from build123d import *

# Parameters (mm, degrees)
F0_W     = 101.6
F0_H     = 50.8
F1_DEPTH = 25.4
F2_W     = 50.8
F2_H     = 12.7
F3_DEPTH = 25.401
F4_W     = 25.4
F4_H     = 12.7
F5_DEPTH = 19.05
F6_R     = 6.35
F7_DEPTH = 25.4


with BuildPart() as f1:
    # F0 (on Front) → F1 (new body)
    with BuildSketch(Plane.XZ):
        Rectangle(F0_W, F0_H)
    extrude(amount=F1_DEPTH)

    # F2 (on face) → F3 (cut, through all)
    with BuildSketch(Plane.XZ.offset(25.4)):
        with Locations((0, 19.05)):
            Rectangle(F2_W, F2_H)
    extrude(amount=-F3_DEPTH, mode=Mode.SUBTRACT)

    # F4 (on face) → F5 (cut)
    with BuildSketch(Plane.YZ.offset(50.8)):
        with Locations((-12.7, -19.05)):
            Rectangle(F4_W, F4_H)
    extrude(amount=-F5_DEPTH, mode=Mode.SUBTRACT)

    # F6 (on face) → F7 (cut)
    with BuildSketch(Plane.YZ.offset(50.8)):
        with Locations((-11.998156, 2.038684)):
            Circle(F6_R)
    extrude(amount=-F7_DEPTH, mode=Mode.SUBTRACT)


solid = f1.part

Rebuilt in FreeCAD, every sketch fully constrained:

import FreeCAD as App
import Part
import Sketcher

V = App.Vector
Q = App.Units.Quantity


def add_polygon(sketch, points):
    """Adds a closed chain of lines whose ends are joined by coincident constraints."""
    first, n = sketch.GeometryCount, len(points)
    for a, b in zip(points, points[1:] + points[:1]):
        sketch.addGeometry(Part.LineSegment(App.Vector(*a, 0), App.Vector(*b, 0)), False)
    for i in range(n):
        sketch.addConstraint(Sketcher.Constraint("Coincident", first + i, 2, first + (i + 1) % n, 1))

doc = App.newDocument("Part")
body = doc.addObject("PartDesign::Body", "Body")

# Sketch on XZ plane
sketch1 = body.newObject("Sketcher::SketchObject", "Sketch")
sketch1.AttachmentSupport = (doc.getObject("XZ_Plane"), [""])
sketch1.MapMode = "FlatFace"
add_polygon(sketch1, [(-51, 25), (-51, -25), (51, -25), (51, 25)])  # lines 0-3
sketch1.addConstraint(Sketcher.Constraint("Vertical", 0))
sketch1.addConstraint(Sketcher.Constraint("Horizontal", 1))
sketch1.addConstraint(Sketcher.Constraint("Vertical", 2))
sketch1.addConstraint(Sketcher.Constraint("Horizontal", 3))
sketch1.addConstraint(Sketcher.Constraint("Symmetric", 0, 2, 2, 2, -1, 1))
sketch1.addConstraint(Sketcher.Constraint("DistanceX", 1, 1, 1, 2, Q("4 in")))
sketch1.addConstraint(Sketcher.Constraint("DistanceY", 0, 2, 0, 1, Q("2 in")))
pad1 = body.newObject("PartDesign::Pad", "Pad")
pad1.Profile = sketch1
pad1.Length = Q("1 in")

# Sketch on XZ plane
sketch2 = body.newObject("Sketcher::SketchObject", "Sketch001")
sketch2.AttachmentSupport = (doc.getObject("XZ_Plane"), [""])
sketch2.MapMode = "FlatFace"
sketch2.AttachmentOffset = App.Placement(V(0, 0, 1 * 25.4), App.Rotation())
add_polygon(sketch2, [(-25, 25), (-25, 13), (25, 13), (25, 25)])  # lines 0-3
sketch2.addConstraint(Sketcher.Constraint("Vertical", 0))
sketch2.addConstraint(Sketcher.Constraint("Horizontal", 1))
sketch2.addConstraint(Sketcher.Constraint("Vertical", 2))
sketch2.addConstraint(Sketcher.Constraint("Horizontal", 3))
sketch2.addConstraint(Sketcher.Constraint("DistanceX", 1, 1, 1, 2, Q("2 in")))
sketch2.addConstraint(Sketcher.Constraint("DistanceY", 0, 2, 0, 1, Q("0.5 in")))
sketch2.addConstraint(Sketcher.Constraint("DistanceX", 0, 2, -1, 1, Q("1 in")))
sketch2.addConstraint(Sketcher.Constraint("DistanceY", -1, 1, 2, 2, Q("1 in")))
pocket1 = body.newObject("PartDesign::Pocket", "Pocket")
pocket1.Profile = sketch2
pocket1.Type = "ThroughAll"

# Sketch on YZ plane
sketch3 = body.newObject("Sketcher::SketchObject", "Sketch002")
sketch3.AttachmentSupport = (doc.getObject("YZ_Plane"), [""])
sketch3.MapMode = "FlatFace"
sketch3.AttachmentOffset = App.Placement(V(0, 0, 2 * 25.4), App.Rotation())
add_polygon(sketch3, [(-25, -13), (-25, -25), (0, -25), (0, -13)])  # lines 0-3
sketch3.addConstraint(Sketcher.Constraint("Vertical", 0))
sketch3.addConstraint(Sketcher.Constraint("Horizontal", 1))
sketch3.addConstraint(Sketcher.Constraint("Vertical", 2))
sketch3.addConstraint(Sketcher.Constraint("Horizontal", 3))
sketch3.addConstraint(Sketcher.Constraint("PointOnObject", 1, 2, -2))
sketch3.addConstraint(Sketcher.Constraint("DistanceX", 1, 1, 1, 2, Q("1 in")))
sketch3.addConstraint(Sketcher.Constraint("DistanceY", 0, 2, 0, 1, Q("0.5 in")))
sketch3.addConstraint(Sketcher.Constraint("DistanceY", 0, 2, -1, 1, Q("1 in")))
pocket2 = body.newObject("PartDesign::Pocket", "Pocket001")
pocket2.Profile = sketch3
pocket2.Length = Q("0.75 in")

# Sketch on YZ plane
sketch4 = body.newObject("Sketcher::SketchObject", "Sketch003")
sketch4.AttachmentSupport = (doc.getObject("YZ_Plane"), [""])
sketch4.MapMode = "FlatFace"
sketch4.AttachmentOffset = App.Placement(V(0, 0, 2 * 25.4), App.Rotation())
sketch4.addGeometry(Part.Circle(V(-12, 2, 0), V(0, 0, 1), 6), False)
sketch4.addConstraint(Sketcher.Constraint("Diameter", 0, Q("0.5 in")))
sketch4.addConstraint(Sketcher.Constraint("DistanceX", 0, 3, -1, 1, 11.998156))
sketch4.addConstraint(Sketcher.Constraint("DistanceY", -1, 1, 0, 3, 2.038684))
pocket3 = body.newObject("PartDesign::Pocket", "Pocket002")
pocket3.Profile = sketch4
pocket3.Length = Q("1 in")

doc.recompute()
